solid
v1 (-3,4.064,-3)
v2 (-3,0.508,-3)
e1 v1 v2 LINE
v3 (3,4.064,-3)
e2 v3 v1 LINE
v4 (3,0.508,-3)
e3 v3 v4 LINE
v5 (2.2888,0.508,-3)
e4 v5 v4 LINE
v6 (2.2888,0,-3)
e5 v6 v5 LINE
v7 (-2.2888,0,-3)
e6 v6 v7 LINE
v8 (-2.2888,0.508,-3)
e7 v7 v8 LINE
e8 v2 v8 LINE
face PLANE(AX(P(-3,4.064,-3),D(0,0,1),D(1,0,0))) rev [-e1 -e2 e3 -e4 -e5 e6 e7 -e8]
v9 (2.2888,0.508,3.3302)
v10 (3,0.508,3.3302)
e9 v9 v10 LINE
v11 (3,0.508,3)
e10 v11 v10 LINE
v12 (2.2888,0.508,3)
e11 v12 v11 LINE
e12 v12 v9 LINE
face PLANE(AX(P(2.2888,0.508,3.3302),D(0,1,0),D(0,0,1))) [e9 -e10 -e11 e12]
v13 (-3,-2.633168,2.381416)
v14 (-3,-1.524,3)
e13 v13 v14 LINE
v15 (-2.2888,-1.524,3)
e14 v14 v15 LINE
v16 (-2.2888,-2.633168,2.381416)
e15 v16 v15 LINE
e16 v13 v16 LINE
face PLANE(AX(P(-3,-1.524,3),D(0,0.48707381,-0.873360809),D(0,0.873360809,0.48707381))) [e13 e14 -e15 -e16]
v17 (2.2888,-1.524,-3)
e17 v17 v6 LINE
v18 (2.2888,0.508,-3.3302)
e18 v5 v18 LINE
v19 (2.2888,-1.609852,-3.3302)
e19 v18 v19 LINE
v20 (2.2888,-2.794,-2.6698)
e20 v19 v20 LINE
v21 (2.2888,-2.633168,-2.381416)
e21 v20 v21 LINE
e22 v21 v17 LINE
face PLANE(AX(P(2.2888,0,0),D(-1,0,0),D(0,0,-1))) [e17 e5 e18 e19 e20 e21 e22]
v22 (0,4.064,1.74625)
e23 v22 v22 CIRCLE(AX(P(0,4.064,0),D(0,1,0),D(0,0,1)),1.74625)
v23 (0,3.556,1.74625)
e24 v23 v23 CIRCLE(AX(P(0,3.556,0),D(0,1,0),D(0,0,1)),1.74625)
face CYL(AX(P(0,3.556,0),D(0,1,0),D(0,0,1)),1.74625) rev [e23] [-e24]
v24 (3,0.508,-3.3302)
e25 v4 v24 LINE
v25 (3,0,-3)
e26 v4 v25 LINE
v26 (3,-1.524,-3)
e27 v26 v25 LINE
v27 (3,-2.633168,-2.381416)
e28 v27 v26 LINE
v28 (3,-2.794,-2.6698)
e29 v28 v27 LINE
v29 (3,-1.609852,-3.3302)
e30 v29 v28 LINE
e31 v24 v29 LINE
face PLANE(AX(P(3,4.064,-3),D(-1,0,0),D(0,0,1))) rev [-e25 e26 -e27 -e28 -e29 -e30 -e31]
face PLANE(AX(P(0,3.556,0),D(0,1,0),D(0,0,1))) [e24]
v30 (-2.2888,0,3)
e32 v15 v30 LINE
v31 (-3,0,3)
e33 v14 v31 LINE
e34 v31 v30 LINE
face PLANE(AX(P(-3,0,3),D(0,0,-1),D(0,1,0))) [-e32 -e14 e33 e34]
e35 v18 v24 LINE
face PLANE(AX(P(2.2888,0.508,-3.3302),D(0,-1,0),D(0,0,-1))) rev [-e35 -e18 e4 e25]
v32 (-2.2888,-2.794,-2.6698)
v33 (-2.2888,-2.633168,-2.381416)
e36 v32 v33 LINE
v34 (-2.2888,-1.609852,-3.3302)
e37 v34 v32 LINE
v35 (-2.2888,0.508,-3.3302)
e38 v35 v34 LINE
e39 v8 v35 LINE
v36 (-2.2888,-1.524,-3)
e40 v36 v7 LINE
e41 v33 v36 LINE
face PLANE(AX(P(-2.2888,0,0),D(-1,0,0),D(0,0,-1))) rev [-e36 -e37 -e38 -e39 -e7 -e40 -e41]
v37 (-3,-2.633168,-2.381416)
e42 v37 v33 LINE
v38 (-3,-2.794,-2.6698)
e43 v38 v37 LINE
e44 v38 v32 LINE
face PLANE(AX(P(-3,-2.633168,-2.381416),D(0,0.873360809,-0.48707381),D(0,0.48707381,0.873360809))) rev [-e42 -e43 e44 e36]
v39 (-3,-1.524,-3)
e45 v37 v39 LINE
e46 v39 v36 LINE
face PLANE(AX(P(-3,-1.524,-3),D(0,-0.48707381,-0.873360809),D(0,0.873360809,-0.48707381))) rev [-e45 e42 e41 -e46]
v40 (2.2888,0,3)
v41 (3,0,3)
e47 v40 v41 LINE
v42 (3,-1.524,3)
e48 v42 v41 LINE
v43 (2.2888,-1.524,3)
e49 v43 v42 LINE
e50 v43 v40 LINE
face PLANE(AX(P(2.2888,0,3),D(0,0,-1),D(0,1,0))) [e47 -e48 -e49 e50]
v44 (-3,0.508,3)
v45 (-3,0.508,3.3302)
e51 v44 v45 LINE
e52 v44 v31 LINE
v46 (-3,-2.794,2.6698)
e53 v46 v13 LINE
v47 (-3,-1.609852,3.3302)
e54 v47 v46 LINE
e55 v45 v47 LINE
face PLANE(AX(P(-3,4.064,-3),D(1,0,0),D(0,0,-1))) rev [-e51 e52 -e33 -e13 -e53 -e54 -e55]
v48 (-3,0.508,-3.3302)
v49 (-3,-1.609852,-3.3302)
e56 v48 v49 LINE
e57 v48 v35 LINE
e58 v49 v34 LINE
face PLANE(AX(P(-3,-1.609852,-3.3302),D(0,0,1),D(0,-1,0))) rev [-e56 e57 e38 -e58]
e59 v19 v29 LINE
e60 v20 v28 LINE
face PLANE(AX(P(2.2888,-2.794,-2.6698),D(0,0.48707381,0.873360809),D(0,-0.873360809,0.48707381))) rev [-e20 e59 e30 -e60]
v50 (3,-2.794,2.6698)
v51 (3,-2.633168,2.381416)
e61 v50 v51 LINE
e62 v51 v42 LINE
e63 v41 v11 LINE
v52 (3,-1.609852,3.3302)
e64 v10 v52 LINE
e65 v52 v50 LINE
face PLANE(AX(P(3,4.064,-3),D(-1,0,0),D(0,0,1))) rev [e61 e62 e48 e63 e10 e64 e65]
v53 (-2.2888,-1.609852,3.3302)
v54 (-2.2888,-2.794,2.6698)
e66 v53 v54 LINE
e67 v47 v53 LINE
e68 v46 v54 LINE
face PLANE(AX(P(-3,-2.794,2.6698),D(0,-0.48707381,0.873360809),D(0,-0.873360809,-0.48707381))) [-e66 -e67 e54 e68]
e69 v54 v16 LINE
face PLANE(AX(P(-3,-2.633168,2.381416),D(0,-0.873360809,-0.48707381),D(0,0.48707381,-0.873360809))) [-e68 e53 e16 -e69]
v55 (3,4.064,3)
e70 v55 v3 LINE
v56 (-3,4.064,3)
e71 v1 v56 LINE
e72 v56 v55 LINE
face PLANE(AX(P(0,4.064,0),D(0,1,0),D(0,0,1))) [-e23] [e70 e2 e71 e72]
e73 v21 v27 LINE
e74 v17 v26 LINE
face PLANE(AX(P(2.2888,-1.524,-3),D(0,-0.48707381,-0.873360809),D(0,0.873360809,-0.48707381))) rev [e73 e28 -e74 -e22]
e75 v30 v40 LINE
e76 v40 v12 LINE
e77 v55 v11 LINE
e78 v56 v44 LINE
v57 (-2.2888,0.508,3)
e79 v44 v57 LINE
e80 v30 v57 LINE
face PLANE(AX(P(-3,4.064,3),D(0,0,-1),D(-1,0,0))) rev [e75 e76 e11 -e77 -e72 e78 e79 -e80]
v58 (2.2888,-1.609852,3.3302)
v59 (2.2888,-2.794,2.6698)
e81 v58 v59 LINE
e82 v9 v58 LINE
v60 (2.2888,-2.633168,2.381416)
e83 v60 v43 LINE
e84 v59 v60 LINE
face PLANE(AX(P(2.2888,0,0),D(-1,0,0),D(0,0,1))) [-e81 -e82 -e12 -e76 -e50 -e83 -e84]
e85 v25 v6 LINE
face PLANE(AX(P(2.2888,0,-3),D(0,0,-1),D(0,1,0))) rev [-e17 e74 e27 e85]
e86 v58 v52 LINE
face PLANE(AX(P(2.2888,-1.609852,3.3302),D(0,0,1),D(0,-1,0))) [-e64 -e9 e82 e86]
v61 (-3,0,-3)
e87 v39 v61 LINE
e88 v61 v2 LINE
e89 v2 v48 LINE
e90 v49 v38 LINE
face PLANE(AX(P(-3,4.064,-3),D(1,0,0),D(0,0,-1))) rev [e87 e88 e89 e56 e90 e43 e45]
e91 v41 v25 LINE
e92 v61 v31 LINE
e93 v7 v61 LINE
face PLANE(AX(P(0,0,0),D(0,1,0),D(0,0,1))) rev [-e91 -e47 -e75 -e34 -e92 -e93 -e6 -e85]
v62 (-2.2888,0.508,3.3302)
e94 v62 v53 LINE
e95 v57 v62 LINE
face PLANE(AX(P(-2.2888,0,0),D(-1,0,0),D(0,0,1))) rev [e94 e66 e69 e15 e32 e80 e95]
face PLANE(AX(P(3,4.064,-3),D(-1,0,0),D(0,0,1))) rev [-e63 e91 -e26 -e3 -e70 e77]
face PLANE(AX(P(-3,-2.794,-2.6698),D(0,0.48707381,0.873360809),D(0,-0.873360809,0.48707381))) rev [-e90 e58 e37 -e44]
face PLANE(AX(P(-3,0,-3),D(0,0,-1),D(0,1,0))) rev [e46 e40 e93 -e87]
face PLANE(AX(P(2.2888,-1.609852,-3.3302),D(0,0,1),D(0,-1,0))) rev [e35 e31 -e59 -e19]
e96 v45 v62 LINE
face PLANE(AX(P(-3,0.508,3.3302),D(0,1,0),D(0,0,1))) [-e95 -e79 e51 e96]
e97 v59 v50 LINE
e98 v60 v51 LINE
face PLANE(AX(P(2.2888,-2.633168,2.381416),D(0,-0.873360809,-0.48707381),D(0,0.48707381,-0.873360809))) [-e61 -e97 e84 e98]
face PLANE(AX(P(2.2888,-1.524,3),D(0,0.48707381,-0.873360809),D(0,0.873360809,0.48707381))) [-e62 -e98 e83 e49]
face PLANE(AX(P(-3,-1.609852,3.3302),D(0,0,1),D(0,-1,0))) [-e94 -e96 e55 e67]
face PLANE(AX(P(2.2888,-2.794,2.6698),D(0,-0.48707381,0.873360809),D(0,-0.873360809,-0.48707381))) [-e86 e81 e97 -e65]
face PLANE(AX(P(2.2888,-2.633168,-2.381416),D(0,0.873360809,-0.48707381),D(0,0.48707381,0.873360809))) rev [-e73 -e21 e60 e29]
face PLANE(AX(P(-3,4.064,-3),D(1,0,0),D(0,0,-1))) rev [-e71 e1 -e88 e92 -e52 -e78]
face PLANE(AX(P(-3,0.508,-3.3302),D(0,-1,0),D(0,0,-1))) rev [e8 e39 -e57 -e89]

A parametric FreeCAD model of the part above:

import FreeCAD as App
import Part
import Sketcher
from FreeCAD import Vector
Q = App.Units.Quantity

doc = App.newDocument("Part")
body = doc.addObject("PartDesign::Body", "Body")

# Sketch on XZ plane
sketch1 = body.newObject("Sketcher::SketchObject", "Sketch")
sketch1.AttachmentSupport = (doc.getObject("XZ_Plane"), [""])
sketch1.MapMode = "FlatFace"
sketch1.addGeometry(Part.LineSegment(Vector(-3, -3, 0), Vector(-3, 3, 0)), False)
sketch1.addGeometry(Part.LineSegment(Vector(-3, 3, 0), Vector(3, 3, 0)), False)
sketch1.addGeometry(Part.LineSegment(Vector(3, 3, 0), Vector(3, -3, 0)), False)
sketch1.addGeometry(Part.LineSegment(Vector(3, -3, 0), Vector(-3, -3, 0)), False)
sketch1.addConstraint(Sketcher.Constraint("Coincident", 0, 2, 1, 1))
sketch1.addConstraint(Sketcher.Constraint("Coincident", 1, 2, 2, 1))
sketch1.addConstraint(Sketcher.Constraint("Coincident", 2, 2, 3, 1))
sketch1.addConstraint(Sketcher.Constraint("Coincident", 3, 2, 0, 1))
sketch1.addConstraint(Sketcher.Constraint("Vertical", 0))
sketch1.addConstraint(Sketcher.Constraint("Horizontal", 1))
sketch1.addConstraint(Sketcher.Constraint("Vertical", 2))
sketch1.addConstraint(Sketcher.Constraint("Horizontal", 3))
sketch1.addConstraint(Sketcher.Constraint("Symmetric", 0, 2, 2, 2, -1, 1))
sketch1.addConstraint(Sketcher.Constraint("Equal", 3, 0))
sketch1.addConstraint(Sketcher.Constraint("DistanceX", 1, 1, 1, 2, 6.0))
pad1 = body.newObject("PartDesign::Pad", "Pad")
pad1.Profile = sketch1
pad1.Length = Q("0.16 in")
pad1.Reversed = True

# Sketch on YZ plane
sketch2 = body.newObject("Sketcher::SketchObject", "Sketch001")
sketch2.AttachmentSupport = (doc.getObject("YZ_Plane"), [""])
sketch2.MapMode = "FlatFace"
sketch2.AttachmentOffset = App.Placement(Vector(0, 0, 3), App.Rotation())
sketch2.addGeometry(Part.LineSegment(Vector(-1.52, 3, 0), Vector(0.51, 3, 0)), False)
sketch2.addGeometry(Part.LineSegment(Vector(0.51, 3, 0), Vector(0.51, 3.33, 0)), False)
sketch2.addGeometry(Part.LineSegment(Vector(0.51, 3.33, 0), Vector(-1.61, 3.33, 0)), False)
sketch2.addGeometry(Part.LineSegment(Vector(-1.61, 3.33, 0), Vector(-2.79, 2.67, 0)), False)
sketch2.addGeometry(Part.LineSegment(Vector(-2.79, 2.67, 0), Vector(-2.63, 2.38, 0)), False)
sketch2.addGeometry(Part.LineSegment(Vector(-2.63, 2.38, 0), Vector(-1.52, 3, 0)), False)
sketch2.addConstraint(Sketcher.Constraint("Coincident", 0, 2, 1, 1))
sketch2.addConstraint(Sketcher.Constraint("Coincident", 1, 2, 2, 1))
sketch2.addConstraint(Sketcher.Constraint("Coincident", 2, 2, 3, 1))
sketch2.addConstraint(Sketcher.Constraint("Coincident", 3, 2, 4, 1))
sketch2.addConstraint(Sketcher.Constraint("Coincident", 4, 2, 5, 1))
sketch2.addConstraint(Sketcher.Constraint("Coincident", 5, 2, 0, 1))
sketch2.addConstraint(Sketcher.Constraint("Horizontal", 0))
sketch2.addConstraint(Sketcher.Constraint("Vertical", 1))
sketch2.addConstraint(Sketcher.Constraint("Horizontal", 2))
sketch2.addConstraint(Sketcher.Constraint("Perpendicular", 3, 4))
sketch2.addConstraint(Sketcher.Constraint("Perpendicular", 4, 5))
sketch2.addConstraint(Sketcher.Constraint("DistanceX", 0, 1, 0, 2, Q("0.08 in")))
sketch2.addConstraint(Sketcher.Constraint("Distance", 5, Q("0.05 in")))
sketch2.addConstraint(Sketcher.Constraint("DistanceY", 1, 1, 1, 2, Q("0.013 in")))
sketch2.addConstraint(Sketcher.Constraint("DistanceX", -1, 1, 0, 2, Q("0.02 in")))
sketch2.addConstraint(Sketcher.Constraint("DistanceX", 3, 2, -1, 1, Q("0.11 in")))
sketch2.addConstraint(Sketcher.Constraint("Distance", 4, Q("0.013 in")))
sketch2.addConstraint(Sketcher.Constraint("DistanceY", -1, 1, 0, 2, 3.0))
pad2 = body.newObject("PartDesign::Pad", "Pad001")
pad2.Profile = sketch2
pad2.Length = Q("0.028 in")
pad2.Reversed = True
doc.recompute()

linearpattern = body.newObject("PartDesign::LinearPattern", "LinearPattern")
linearpattern.Originals = [pad2]
linearpattern.Direction = (doc.getObject("X_Axis"), [""])
linearpattern.Mode = "offset"
linearpattern.Offset = 5.2888
linearpattern.Occurrences = 2
linearpattern.Reversed = True
body.Tip = linearpattern
doc.recompute()

mirrored = body.newObject("PartDesign::Mirrored", "Mirrored")
mirrored.Originals = [pad2]
mirrored.MirrorPlane = (doc.getObject("XY_Plane"), [""])
body.Tip = mirrored

# Sketch on YZ plane
sketch3 = body.newObject("Sketcher::SketchObject", "Sketch002")
sketch3.AttachmentSupport = (doc.getObject("YZ_Plane"), [""])
sketch3.MapMode = "FlatFace"
sketch3.AttachmentOffset = App.Placement(Vector(0, 0, -2.2888), App.Rotation())
sketch3.addGeometry(Part.LineSegment(Vector(-1.52, -3, 0), Vector(-2.63, -2.38, 0)), False)
sketch3.addGeometry(Part.LineSegment(Vector(-2.63, -2.38, 0), Vector(-2.79, -2.67, 0)), False)
sketch3.addGeometry(Part.LineSegment(Vector(-2.79, -2.67, 0), Vector(-1.61, -3.33, 0)), False)
sketch3.addGeometry(Part.LineSegment(Vector(-1.61, -3.33, 0), Vector(0.51, -3.33, 0)), False)
sketch3.addGeometry(Part.LineSegment(Vector(0.51, -3.33, 0), Vector(0.51, -3, 0)), False)
sketch3.addGeometry(Part.LineSegment(Vector(0.51, -3, 0), Vector(-1.52, -3, 0)), False)
sketch3.addConstraint(Sketcher.Constraint("Coincident", 0, 2, 1, 1))
sketch3.addConstraint(Sketcher.Constraint("Coincident", 1, 2, 2, 1))
sketch3.addConstraint(Sketcher.Constraint("Coincident", 2, 2, 3, 1))
sketch3.addConstraint(Sketcher.Constraint("Coincident", 3, 2, 4, 1))
sketch3.addConstraint(Sketcher.Constraint("Coincident", 4, 2, 5, 1))
sketch3.addConstraint(Sketcher.Constraint("Coincident", 5, 2, 0, 1))
sketch3.addConstraint(Sketcher.Constraint("Horizontal", 3))
sketch3.addConstraint(Sketcher.Constraint("Vertical", 4))
sketch3.addConstraint(Sketcher.Constraint("Horizontal", 5))
sketch3.addConstraint(Sketcher.Constraint("Perpendicular", 0, 1))
sketch3.addConstraint(Sketcher.Constraint("Perpendicular", 1, 2))
sketch3.addConstraint(Sketcher.Constraint("DistanceX", 5, 2, 5, 1, Q("0.08 in")))
sketch3.addConstraint(Sketcher.Constraint("Distance", 0, Q("0.05 in")))
sketch3.addConstraint(Sketcher.Constraint("DistanceY", 4, 1, 4, 2, Q("0.013 in")))
sketch3.addConstraint(Sketcher.Constraint("DistanceX", 1, 2, -1, 1, Q("0.11 in")))
sketch3.addConstraint(Sketcher.Constraint("DistanceX", -1, 1, 3, 2, Q("0.02 in")))
sketch3.addConstraint(Sketcher.Constraint("Distance", 1, Q("0.013 in")))
sketch3.addConstraint(Sketcher.Constraint("DistanceY", 1, 2, -1, 1, 2.6698))
pad3 = body.newObject("PartDesign::Pad", "Pad002")
pad3.Profile = sketch3
pad3.Length = Q("0.028 in")
pad3.Reversed = True

# Sketch on XZ plane
sketch4 = body.newObject("Sketcher::SketchObject", "Sketch003")
sketch4.AttachmentSupport = (doc.getObject("XZ_Plane"), [""])
sketch4.MapMode = "FlatFace"
sketch4.AttachmentOffset = App.Placement(Vector(0, 0, -0.16 * 25.4), App.Rotation())
sketch4.addGeometry(Part.Circle(Vector(0, 0, 0), Vector(0, 0, 1), 1.7), False)
sketch4.addConstraint(Sketcher.Constraint("Coincident", 0, 3, -1, 1))
sketch4.addConstraint(Sketcher.Constraint("Diameter", 0, Q("0.1375 in")))
pocket1 = body.newObject("PartDesign::Pocket", "Pocket")
pocket1.Profile = sketch4
pocket1.Length = Q("0.02 in")
pocket1.Reversed = True

doc.recompute()
